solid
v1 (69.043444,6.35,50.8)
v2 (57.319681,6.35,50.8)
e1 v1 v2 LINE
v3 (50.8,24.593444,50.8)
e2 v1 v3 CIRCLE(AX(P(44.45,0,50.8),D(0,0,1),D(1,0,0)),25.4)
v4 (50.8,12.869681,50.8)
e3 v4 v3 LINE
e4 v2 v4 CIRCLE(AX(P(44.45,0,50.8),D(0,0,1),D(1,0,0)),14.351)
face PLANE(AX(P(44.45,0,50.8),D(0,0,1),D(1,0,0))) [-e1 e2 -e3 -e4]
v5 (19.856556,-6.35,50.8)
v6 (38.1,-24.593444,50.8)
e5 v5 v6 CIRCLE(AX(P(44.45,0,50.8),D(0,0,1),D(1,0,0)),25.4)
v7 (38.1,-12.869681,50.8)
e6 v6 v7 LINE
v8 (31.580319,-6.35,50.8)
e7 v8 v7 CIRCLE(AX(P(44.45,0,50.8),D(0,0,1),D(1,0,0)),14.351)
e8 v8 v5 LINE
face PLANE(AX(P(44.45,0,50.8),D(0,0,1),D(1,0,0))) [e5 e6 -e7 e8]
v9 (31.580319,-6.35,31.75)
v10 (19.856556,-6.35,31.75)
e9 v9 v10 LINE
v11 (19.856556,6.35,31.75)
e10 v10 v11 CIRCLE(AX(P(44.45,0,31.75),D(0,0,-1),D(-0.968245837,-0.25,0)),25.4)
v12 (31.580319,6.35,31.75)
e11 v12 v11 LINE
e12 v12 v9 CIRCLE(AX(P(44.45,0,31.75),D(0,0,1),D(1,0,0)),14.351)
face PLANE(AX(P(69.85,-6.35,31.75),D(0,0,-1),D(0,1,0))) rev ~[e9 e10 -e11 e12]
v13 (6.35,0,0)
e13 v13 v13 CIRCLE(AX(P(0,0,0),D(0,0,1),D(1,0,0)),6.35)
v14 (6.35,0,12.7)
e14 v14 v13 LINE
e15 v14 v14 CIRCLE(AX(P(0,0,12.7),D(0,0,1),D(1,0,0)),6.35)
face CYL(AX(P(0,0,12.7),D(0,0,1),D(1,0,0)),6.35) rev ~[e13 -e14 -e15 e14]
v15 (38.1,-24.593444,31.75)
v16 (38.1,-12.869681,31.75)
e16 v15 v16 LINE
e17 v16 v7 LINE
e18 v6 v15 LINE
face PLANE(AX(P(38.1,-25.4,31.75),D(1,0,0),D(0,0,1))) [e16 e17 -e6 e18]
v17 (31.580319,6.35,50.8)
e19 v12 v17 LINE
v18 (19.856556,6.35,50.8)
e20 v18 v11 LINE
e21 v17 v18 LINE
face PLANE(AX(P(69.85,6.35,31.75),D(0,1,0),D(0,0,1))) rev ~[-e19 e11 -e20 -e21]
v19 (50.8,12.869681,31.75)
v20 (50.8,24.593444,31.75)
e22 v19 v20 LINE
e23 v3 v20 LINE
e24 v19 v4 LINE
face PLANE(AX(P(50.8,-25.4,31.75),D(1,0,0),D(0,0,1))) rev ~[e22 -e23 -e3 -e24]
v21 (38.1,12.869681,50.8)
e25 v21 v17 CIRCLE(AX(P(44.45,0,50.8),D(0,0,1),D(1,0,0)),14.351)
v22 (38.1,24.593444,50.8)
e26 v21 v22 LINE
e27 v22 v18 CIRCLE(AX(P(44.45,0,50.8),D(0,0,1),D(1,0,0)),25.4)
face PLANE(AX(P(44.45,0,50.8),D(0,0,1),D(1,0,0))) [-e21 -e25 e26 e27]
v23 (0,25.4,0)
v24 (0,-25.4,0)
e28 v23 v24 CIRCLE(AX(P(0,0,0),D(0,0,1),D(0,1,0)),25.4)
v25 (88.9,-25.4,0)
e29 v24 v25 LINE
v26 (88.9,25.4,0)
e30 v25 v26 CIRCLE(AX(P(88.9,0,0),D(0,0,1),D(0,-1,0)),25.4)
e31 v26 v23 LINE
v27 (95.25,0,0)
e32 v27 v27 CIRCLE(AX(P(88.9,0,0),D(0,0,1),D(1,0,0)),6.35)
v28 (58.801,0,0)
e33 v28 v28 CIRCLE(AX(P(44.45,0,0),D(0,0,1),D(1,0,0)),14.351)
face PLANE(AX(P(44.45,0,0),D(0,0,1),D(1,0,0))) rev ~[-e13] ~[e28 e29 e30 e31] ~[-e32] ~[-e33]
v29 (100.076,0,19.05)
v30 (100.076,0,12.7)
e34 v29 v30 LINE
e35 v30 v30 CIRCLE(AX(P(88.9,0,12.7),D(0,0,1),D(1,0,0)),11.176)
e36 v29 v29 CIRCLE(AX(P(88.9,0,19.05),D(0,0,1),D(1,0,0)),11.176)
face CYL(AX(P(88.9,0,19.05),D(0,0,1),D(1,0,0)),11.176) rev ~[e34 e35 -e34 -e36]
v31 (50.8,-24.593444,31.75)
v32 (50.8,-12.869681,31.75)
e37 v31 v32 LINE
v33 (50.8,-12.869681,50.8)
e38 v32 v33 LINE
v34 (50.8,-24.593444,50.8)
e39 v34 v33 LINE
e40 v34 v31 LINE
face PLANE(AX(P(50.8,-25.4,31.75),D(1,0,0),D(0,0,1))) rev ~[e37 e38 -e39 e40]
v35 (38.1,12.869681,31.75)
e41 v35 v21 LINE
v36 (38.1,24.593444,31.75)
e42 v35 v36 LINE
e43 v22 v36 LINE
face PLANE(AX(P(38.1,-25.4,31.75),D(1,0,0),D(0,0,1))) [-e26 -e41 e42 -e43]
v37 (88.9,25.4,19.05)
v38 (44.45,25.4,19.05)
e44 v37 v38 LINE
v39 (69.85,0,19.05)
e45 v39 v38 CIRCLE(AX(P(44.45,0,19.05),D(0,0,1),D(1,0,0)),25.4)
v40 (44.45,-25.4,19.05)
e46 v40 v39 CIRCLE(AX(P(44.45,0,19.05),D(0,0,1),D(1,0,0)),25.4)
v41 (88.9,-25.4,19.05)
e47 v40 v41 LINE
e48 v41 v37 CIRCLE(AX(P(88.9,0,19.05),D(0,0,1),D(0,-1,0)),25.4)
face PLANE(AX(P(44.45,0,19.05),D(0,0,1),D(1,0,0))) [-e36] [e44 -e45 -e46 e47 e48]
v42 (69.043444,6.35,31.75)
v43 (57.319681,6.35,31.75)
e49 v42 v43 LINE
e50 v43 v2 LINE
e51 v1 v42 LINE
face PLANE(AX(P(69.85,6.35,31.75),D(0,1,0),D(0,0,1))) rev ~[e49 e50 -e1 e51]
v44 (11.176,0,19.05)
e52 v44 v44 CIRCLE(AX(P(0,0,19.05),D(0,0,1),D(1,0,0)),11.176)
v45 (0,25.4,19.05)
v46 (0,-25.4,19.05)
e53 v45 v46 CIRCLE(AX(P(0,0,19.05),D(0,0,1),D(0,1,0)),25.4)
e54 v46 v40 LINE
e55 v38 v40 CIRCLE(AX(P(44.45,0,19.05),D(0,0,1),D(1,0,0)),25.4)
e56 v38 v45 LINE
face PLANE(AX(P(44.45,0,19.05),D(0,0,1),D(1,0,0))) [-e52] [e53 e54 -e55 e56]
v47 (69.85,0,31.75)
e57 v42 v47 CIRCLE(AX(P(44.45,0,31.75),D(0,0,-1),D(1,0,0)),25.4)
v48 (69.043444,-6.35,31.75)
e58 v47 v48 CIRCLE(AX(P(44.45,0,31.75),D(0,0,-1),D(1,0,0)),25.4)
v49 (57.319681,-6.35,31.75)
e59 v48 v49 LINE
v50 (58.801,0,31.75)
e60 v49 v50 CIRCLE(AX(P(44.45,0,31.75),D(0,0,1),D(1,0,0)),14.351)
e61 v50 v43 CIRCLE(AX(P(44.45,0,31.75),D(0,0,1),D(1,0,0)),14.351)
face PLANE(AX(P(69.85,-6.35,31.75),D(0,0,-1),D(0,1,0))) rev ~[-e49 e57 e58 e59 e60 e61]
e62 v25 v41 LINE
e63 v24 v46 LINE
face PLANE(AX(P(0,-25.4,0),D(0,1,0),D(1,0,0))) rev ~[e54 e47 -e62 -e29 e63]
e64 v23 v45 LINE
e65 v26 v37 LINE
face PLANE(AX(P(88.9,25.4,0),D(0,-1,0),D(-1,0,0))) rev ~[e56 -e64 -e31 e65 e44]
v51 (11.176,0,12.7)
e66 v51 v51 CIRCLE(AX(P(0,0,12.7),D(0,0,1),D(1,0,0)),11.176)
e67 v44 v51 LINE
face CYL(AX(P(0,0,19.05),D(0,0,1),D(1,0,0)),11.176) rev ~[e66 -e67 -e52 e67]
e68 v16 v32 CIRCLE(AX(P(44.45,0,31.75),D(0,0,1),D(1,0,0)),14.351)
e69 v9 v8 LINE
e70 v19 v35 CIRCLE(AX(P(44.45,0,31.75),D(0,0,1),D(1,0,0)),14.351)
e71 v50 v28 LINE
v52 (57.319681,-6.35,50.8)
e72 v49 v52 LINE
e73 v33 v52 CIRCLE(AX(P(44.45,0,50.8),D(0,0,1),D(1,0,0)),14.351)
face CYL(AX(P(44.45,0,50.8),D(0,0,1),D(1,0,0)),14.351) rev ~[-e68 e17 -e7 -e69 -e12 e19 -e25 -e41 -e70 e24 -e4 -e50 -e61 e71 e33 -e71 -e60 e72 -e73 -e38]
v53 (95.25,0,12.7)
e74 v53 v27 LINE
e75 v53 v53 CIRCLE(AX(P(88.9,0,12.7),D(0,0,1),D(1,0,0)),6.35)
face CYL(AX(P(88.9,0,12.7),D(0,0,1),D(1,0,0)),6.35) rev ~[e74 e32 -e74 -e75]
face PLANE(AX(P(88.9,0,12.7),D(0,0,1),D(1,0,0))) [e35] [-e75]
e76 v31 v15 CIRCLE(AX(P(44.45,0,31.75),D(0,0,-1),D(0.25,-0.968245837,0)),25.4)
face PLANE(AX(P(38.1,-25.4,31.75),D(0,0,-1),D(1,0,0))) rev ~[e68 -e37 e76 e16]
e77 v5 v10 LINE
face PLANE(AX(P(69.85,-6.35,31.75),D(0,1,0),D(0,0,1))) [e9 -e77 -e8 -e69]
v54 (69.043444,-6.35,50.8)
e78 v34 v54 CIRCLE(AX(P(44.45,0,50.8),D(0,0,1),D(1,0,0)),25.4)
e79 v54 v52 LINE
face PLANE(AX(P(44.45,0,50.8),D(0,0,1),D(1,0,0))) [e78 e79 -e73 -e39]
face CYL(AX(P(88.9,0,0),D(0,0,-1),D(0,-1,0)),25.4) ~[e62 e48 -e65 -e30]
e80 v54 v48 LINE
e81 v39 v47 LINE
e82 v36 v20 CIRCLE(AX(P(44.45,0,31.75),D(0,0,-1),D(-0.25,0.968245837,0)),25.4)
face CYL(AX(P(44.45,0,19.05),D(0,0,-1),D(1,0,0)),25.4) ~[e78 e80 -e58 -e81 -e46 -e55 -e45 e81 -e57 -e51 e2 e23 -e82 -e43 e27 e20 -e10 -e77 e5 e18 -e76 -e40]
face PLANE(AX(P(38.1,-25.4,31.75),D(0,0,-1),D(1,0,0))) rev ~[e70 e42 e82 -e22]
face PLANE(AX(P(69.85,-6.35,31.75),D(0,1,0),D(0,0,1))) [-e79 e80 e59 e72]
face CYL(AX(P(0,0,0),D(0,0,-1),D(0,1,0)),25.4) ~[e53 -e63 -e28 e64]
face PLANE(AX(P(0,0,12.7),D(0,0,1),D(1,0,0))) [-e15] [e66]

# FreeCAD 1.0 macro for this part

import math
import FreeCAD as App
import Part
import Sketcher

V = App.Vector
Q = App.Units.Quantity

doc = App.newDocument("Part")
body = doc.addObject("PartDesign::Body", "Body")

# Sketch on XY plane
sketch1 = body.newObject("Sketcher::SketchObject", "Sketch")
sketch1.AttachmentSupport = (doc.getObject("XY_Plane"), [""])
sketch1.MapMode = "FlatFace"
sketch1.addGeometry([
    Part.LineSegment(V(88.9, 25.4, 0), V(0, 25.4, 0)),
    Part.ArcOfCircle(Part.Circle(V(0, 0, 0), V(0, 0, 1), 25.4), math.radians(90), math.radians(270)),
    Part.LineSegment(V(0, -25.4, 0), V(88.9, -25.4, 0)),
    Part.ArcOfCircle(Part.Circle(V(88.9, 0, 0), V(0, 0, 1), 25.4), math.radians(-90), math.radians(90)),
], False)
sketch1.addConstraint([
    Sketcher.Constraint("Tangent", 0, 2, 1, 1),
    Sketcher.Constraint("Tangent", 1, 2, 2, 1),
    Sketcher.Constraint("Tangent", 2, 2, 3, 1),
    Sketcher.Constraint("Tangent", 3, 2, 0, 1),
    Sketcher.Constraint("Horizontal", 0),
    Sketcher.Constraint("Horizontal", 2),
    Sketcher.Constraint("Coincident", 1, 3, -1, 1),
    Sketcher.Constraint("Radius", 1, Q("1 in")),
    Sketcher.Constraint("DistanceX", 0, 2, 0, 1, Q("3.5 in")),
])
pad1 = body.newObject("PartDesign::Pad", "Pad")
pad1.Profile = sketch1
pad1.Length = Q("0.75 in")

# Sketch on XY plane
sketch2 = body.newObject("Sketcher::SketchObject", "Sketch001")
sketch2.AttachmentSupport = (doc.getObject("XY_Plane"), [""])
sketch2.MapMode = "FlatFace"
sketch2.AttachmentOffset = App.Placement(V(0, 0, 0.75 * 25.4), App.Rotation())
sketch2.addGeometry([
    Part.Circle(V(0, 0, 0), V(0, 0, 1), 11.176),
    Part.Circle(V(88.9, 0, 0), V(0, 0, 1), 11.176),
], False)
sketch2.addConstraint([
    Sketcher.Constraint("Coincident", 0, 3, -1, 1),
    Sketcher.Constraint("Equal", 0, 1),
    Sketcher.Constraint("PointOnObject", 1, 3, -1),
    Sketcher.Constraint("Diameter", 0, Q("0.88 in")),
    Sketcher.Constraint("DistanceX", -1, 1, 1, 3, Q("3.5 in")),
])
pocket1 = body.newObject("PartDesign::Pocket", "Pocket")
pocket1.Profile = sketch2
pocket1.Length = Q("0.25 in")

# Sketch on XY plane
sketch3 = body.newObject("Sketcher::SketchObject", "Sketch002")
sketch3.AttachmentSupport = (doc.getObject("XY_Plane"), [""])
sketch3.MapMode = "FlatFace"
sketch3.AttachmentOffset = App.Placement(V(0, 0, 0.5 * 25.4), App.Rotation())
sketch3.addGeometry(Part.Circle(V(0, 0, 0), V(0, 0, 1), 6.35), False)
sketch3.addConstraint([
    Sketcher.Constraint("Coincident", 0, 3, -1, 1),
    Sketcher.Constraint("Diameter", 0, Q("0.5 in")),
])
pocket2 = body.newObject("PartDesign::Pocket", "Pocket001")
pocket2.Profile = sketch3
pocket2.Length = Q("1 in")

# Sketch on XY plane
sketch4 = body.newObject("Sketcher::SketchObject", "Sketch003")
sketch4.AttachmentSupport = (doc.getObject("XY_Plane"), [""])
sketch4.MapMode = "FlatFace"
sketch4.AttachmentOffset = App.Placement(V(0, 0, 0.5 * 25.4), App.Rotation())
sketch4.addGeometry(Part.Circle(V(88.9, 0, 0), V(0, 0, 1), 6.35), False)
sketch4.addConstraint([
    Sketcher.Constraint("PointOnObject", 0, 3, -1),
    Sketcher.Constraint("Diameter", 0, Q("0.5 in")),
    Sketcher.Constraint("DistanceX", -1, 1, 0, 3, Q("3.5 in")),
])
pocket3 = body.newObject("PartDesign::Pocket", "Pocket002")
pocket3.Profile = sketch4
pocket3.Length = Q("1 in")

# Sketch on XY plane
sketch5 = body.newObject("Sketcher::SketchObject", "Sketch004")
sketch5.AttachmentSupport = (doc.getObject("XY_Plane"), [""])
sketch5.MapMode = "FlatFace"
sketch5.AttachmentOffset = App.Placement(V(0, 0, 0.75 * 25.4), App.Rotation())
sketch5.addGeometry(Part.Circle(V(44.45, 0, 0), V(0, 0, 1), 25.4), False)
sketch5.addConstraint([
    Sketcher.Constraint("PointOnObject", 0, 3, -1),
    Sketcher.Constraint("Diameter", 0, Q("2 in")),
    Sketcher.Constraint("DistanceX", -1, 1, 0, 3, Q("1.75 in")),
])
pad2 = body.newObject("PartDesign::Pad", "Pad001")
pad2.Profile = sketch5
pad2.Length = Q("1.25 in")

# Sketch on XY plane
sketch6 = body.newObject("Sketcher::SketchObject", "Sketch005")
sketch6.AttachmentSupport = (doc.getObject("XY_Plane"), [""])
sketch6.MapMode = "FlatFace"
sketch6.AttachmentOffset = App.Placement(V(0, 0, 2 * 25.4), App.Rotation())
sketch6.addGeometry(Part.Circle(V(44.45, 0, 0), V(0, 0, 1), 14.351), False)
sketch6.addConstraint([
    Sketcher.Constraint("PointOnObject", 0, 3, -1),
    Sketcher.Constraint("Diameter", 0, Q("1.13 in")),
    Sketcher.Constraint("DistanceX", -1, 1, 0, 3, Q("1.75 in")),
])
pocket4 = body.newObject("PartDesign::Pocket", "Pocket003")
pocket4.Profile = sketch6
pocket4.Length = Q("2 in")

# Sketch on XZ plane
sketch7 = body.newObject("Sketcher::SketchObject", "Sketch006")
sketch7.AttachmentSupport = (doc.getObject("XZ_Plane"), [""])
sketch7.MapMode = "FlatFace"
sketch7.AttachmentOffset = App.Placement(V(0, 0, 1 * 25.4), App.Rotation())
sketch7.addGeometry([
    Part.LineSegment(V(38.1, 50.8, 0), V(38.1, 31.75, 0)),
    Part.LineSegment(V(38.1, 31.75, 0), V(50.8, 31.75, 0)),
    Part.LineSegment(V(50.8, 31.75, 0), V(50.8, 50.8, 0)),
    Part.LineSegment(V(50.8, 50.8, 0), V(38.1, 50.8, 0)),
], False)
sketch7.addConstraint([
    Sketcher.Constraint("Coincident", 0, 2, 1, 1),
    Sketcher.Constraint("Coincident", 1, 2, 2, 1),
    Sketcher.Constraint("Coincident", 2, 2, 3, 1),
    Sketcher.Constraint("Coincident", 3, 2, 0, 1),
    Sketcher.Constraint("Vertical", 0),
    Sketcher.Constraint("Horizontal", 1),
    Sketcher.Constraint("Vertical", 2),
    Sketcher.Constraint("Horizontal", 3),
    Sketcher.Constraint("DistanceX", 1, 1, 1, 2, Q("0.5 in")),
    Sketcher.Constraint("DistanceX", -1, 1, 1, 2, Q("2 in")),
    Sketcher.Constraint("DistanceY", -1, 1, 2, 2, Q("2 in")),
    Sketcher.Constraint("DistanceY", 0, 2, 0, 1, Q("0.75 in")),
])
pocket5 = body.newObject("PartDesign::Pocket", "Pocket004")
pocket5.Profile = sketch7
pocket5.Length = Q("2 in")

# Sketch on YZ plane
sketch8 = body.newObject("Sketcher::SketchObject", "Sketch007")
sketch8.AttachmentSupport = (doc.getObject("YZ_Plane"), [""])
sketch8.MapMode = "FlatFace"
sketch8.AttachmentOffset = App.Placement(V(0, 0, 2.75 * 25.4), App.Rotation())
sketch8.addGeometry([
    Part.LineSegment(V(-6.35, 50.8, 0), V(-6.35, 31.75, 0)),
    Part.LineSegment(V(-6.35, 31.75, 0), V(6.35, 31.75, 0)),
    Part.LineSegment(V(6.35, 31.75, 0), V(6.35, 50.8, 0)),
    Part.LineSegment(V(6.35, 50.8, 0), V(-6.35, 50.8, 0)),
], False)
sketch8.addConstraint([
    Sketcher.Constraint("Coincident", 0, 2, 1, 1),
    Sketcher.Constraint("Coincident", 1, 2, 2, 1),
    Sketcher.Constraint("Coincident", 2, 2, 3, 1),
    Sketcher.Constraint("Coincident", 3, 2, 0, 1),
    Sketcher.Constraint("Vertical", 0),
    Sketcher.Constraint("Horizontal", 1),
    Sketcher.Constraint("Vertical", 2),
    Sketcher.Constraint("Horizontal", 3),
    Sketcher.Constraint("DistanceX", 1, 1, 1, 2, Q("0.5 in")),
    Sketcher.Constraint("DistanceY", -1, 1, 2, 2, Q("2 in")),
    Sketcher.Constraint("DistanceY", 0, 2, 0, 1, Q("0.75 in")),
    Sketcher.Constraint("DistanceX", 0, 2, -1, 1, Q("0.25 in")),
])
pocket6 = body.newObject("PartDesign::Pocket", "Pocket005")
pocket6.Profile = sketch8
pocket6.Length = Q("2 in")

doc.recompute()
